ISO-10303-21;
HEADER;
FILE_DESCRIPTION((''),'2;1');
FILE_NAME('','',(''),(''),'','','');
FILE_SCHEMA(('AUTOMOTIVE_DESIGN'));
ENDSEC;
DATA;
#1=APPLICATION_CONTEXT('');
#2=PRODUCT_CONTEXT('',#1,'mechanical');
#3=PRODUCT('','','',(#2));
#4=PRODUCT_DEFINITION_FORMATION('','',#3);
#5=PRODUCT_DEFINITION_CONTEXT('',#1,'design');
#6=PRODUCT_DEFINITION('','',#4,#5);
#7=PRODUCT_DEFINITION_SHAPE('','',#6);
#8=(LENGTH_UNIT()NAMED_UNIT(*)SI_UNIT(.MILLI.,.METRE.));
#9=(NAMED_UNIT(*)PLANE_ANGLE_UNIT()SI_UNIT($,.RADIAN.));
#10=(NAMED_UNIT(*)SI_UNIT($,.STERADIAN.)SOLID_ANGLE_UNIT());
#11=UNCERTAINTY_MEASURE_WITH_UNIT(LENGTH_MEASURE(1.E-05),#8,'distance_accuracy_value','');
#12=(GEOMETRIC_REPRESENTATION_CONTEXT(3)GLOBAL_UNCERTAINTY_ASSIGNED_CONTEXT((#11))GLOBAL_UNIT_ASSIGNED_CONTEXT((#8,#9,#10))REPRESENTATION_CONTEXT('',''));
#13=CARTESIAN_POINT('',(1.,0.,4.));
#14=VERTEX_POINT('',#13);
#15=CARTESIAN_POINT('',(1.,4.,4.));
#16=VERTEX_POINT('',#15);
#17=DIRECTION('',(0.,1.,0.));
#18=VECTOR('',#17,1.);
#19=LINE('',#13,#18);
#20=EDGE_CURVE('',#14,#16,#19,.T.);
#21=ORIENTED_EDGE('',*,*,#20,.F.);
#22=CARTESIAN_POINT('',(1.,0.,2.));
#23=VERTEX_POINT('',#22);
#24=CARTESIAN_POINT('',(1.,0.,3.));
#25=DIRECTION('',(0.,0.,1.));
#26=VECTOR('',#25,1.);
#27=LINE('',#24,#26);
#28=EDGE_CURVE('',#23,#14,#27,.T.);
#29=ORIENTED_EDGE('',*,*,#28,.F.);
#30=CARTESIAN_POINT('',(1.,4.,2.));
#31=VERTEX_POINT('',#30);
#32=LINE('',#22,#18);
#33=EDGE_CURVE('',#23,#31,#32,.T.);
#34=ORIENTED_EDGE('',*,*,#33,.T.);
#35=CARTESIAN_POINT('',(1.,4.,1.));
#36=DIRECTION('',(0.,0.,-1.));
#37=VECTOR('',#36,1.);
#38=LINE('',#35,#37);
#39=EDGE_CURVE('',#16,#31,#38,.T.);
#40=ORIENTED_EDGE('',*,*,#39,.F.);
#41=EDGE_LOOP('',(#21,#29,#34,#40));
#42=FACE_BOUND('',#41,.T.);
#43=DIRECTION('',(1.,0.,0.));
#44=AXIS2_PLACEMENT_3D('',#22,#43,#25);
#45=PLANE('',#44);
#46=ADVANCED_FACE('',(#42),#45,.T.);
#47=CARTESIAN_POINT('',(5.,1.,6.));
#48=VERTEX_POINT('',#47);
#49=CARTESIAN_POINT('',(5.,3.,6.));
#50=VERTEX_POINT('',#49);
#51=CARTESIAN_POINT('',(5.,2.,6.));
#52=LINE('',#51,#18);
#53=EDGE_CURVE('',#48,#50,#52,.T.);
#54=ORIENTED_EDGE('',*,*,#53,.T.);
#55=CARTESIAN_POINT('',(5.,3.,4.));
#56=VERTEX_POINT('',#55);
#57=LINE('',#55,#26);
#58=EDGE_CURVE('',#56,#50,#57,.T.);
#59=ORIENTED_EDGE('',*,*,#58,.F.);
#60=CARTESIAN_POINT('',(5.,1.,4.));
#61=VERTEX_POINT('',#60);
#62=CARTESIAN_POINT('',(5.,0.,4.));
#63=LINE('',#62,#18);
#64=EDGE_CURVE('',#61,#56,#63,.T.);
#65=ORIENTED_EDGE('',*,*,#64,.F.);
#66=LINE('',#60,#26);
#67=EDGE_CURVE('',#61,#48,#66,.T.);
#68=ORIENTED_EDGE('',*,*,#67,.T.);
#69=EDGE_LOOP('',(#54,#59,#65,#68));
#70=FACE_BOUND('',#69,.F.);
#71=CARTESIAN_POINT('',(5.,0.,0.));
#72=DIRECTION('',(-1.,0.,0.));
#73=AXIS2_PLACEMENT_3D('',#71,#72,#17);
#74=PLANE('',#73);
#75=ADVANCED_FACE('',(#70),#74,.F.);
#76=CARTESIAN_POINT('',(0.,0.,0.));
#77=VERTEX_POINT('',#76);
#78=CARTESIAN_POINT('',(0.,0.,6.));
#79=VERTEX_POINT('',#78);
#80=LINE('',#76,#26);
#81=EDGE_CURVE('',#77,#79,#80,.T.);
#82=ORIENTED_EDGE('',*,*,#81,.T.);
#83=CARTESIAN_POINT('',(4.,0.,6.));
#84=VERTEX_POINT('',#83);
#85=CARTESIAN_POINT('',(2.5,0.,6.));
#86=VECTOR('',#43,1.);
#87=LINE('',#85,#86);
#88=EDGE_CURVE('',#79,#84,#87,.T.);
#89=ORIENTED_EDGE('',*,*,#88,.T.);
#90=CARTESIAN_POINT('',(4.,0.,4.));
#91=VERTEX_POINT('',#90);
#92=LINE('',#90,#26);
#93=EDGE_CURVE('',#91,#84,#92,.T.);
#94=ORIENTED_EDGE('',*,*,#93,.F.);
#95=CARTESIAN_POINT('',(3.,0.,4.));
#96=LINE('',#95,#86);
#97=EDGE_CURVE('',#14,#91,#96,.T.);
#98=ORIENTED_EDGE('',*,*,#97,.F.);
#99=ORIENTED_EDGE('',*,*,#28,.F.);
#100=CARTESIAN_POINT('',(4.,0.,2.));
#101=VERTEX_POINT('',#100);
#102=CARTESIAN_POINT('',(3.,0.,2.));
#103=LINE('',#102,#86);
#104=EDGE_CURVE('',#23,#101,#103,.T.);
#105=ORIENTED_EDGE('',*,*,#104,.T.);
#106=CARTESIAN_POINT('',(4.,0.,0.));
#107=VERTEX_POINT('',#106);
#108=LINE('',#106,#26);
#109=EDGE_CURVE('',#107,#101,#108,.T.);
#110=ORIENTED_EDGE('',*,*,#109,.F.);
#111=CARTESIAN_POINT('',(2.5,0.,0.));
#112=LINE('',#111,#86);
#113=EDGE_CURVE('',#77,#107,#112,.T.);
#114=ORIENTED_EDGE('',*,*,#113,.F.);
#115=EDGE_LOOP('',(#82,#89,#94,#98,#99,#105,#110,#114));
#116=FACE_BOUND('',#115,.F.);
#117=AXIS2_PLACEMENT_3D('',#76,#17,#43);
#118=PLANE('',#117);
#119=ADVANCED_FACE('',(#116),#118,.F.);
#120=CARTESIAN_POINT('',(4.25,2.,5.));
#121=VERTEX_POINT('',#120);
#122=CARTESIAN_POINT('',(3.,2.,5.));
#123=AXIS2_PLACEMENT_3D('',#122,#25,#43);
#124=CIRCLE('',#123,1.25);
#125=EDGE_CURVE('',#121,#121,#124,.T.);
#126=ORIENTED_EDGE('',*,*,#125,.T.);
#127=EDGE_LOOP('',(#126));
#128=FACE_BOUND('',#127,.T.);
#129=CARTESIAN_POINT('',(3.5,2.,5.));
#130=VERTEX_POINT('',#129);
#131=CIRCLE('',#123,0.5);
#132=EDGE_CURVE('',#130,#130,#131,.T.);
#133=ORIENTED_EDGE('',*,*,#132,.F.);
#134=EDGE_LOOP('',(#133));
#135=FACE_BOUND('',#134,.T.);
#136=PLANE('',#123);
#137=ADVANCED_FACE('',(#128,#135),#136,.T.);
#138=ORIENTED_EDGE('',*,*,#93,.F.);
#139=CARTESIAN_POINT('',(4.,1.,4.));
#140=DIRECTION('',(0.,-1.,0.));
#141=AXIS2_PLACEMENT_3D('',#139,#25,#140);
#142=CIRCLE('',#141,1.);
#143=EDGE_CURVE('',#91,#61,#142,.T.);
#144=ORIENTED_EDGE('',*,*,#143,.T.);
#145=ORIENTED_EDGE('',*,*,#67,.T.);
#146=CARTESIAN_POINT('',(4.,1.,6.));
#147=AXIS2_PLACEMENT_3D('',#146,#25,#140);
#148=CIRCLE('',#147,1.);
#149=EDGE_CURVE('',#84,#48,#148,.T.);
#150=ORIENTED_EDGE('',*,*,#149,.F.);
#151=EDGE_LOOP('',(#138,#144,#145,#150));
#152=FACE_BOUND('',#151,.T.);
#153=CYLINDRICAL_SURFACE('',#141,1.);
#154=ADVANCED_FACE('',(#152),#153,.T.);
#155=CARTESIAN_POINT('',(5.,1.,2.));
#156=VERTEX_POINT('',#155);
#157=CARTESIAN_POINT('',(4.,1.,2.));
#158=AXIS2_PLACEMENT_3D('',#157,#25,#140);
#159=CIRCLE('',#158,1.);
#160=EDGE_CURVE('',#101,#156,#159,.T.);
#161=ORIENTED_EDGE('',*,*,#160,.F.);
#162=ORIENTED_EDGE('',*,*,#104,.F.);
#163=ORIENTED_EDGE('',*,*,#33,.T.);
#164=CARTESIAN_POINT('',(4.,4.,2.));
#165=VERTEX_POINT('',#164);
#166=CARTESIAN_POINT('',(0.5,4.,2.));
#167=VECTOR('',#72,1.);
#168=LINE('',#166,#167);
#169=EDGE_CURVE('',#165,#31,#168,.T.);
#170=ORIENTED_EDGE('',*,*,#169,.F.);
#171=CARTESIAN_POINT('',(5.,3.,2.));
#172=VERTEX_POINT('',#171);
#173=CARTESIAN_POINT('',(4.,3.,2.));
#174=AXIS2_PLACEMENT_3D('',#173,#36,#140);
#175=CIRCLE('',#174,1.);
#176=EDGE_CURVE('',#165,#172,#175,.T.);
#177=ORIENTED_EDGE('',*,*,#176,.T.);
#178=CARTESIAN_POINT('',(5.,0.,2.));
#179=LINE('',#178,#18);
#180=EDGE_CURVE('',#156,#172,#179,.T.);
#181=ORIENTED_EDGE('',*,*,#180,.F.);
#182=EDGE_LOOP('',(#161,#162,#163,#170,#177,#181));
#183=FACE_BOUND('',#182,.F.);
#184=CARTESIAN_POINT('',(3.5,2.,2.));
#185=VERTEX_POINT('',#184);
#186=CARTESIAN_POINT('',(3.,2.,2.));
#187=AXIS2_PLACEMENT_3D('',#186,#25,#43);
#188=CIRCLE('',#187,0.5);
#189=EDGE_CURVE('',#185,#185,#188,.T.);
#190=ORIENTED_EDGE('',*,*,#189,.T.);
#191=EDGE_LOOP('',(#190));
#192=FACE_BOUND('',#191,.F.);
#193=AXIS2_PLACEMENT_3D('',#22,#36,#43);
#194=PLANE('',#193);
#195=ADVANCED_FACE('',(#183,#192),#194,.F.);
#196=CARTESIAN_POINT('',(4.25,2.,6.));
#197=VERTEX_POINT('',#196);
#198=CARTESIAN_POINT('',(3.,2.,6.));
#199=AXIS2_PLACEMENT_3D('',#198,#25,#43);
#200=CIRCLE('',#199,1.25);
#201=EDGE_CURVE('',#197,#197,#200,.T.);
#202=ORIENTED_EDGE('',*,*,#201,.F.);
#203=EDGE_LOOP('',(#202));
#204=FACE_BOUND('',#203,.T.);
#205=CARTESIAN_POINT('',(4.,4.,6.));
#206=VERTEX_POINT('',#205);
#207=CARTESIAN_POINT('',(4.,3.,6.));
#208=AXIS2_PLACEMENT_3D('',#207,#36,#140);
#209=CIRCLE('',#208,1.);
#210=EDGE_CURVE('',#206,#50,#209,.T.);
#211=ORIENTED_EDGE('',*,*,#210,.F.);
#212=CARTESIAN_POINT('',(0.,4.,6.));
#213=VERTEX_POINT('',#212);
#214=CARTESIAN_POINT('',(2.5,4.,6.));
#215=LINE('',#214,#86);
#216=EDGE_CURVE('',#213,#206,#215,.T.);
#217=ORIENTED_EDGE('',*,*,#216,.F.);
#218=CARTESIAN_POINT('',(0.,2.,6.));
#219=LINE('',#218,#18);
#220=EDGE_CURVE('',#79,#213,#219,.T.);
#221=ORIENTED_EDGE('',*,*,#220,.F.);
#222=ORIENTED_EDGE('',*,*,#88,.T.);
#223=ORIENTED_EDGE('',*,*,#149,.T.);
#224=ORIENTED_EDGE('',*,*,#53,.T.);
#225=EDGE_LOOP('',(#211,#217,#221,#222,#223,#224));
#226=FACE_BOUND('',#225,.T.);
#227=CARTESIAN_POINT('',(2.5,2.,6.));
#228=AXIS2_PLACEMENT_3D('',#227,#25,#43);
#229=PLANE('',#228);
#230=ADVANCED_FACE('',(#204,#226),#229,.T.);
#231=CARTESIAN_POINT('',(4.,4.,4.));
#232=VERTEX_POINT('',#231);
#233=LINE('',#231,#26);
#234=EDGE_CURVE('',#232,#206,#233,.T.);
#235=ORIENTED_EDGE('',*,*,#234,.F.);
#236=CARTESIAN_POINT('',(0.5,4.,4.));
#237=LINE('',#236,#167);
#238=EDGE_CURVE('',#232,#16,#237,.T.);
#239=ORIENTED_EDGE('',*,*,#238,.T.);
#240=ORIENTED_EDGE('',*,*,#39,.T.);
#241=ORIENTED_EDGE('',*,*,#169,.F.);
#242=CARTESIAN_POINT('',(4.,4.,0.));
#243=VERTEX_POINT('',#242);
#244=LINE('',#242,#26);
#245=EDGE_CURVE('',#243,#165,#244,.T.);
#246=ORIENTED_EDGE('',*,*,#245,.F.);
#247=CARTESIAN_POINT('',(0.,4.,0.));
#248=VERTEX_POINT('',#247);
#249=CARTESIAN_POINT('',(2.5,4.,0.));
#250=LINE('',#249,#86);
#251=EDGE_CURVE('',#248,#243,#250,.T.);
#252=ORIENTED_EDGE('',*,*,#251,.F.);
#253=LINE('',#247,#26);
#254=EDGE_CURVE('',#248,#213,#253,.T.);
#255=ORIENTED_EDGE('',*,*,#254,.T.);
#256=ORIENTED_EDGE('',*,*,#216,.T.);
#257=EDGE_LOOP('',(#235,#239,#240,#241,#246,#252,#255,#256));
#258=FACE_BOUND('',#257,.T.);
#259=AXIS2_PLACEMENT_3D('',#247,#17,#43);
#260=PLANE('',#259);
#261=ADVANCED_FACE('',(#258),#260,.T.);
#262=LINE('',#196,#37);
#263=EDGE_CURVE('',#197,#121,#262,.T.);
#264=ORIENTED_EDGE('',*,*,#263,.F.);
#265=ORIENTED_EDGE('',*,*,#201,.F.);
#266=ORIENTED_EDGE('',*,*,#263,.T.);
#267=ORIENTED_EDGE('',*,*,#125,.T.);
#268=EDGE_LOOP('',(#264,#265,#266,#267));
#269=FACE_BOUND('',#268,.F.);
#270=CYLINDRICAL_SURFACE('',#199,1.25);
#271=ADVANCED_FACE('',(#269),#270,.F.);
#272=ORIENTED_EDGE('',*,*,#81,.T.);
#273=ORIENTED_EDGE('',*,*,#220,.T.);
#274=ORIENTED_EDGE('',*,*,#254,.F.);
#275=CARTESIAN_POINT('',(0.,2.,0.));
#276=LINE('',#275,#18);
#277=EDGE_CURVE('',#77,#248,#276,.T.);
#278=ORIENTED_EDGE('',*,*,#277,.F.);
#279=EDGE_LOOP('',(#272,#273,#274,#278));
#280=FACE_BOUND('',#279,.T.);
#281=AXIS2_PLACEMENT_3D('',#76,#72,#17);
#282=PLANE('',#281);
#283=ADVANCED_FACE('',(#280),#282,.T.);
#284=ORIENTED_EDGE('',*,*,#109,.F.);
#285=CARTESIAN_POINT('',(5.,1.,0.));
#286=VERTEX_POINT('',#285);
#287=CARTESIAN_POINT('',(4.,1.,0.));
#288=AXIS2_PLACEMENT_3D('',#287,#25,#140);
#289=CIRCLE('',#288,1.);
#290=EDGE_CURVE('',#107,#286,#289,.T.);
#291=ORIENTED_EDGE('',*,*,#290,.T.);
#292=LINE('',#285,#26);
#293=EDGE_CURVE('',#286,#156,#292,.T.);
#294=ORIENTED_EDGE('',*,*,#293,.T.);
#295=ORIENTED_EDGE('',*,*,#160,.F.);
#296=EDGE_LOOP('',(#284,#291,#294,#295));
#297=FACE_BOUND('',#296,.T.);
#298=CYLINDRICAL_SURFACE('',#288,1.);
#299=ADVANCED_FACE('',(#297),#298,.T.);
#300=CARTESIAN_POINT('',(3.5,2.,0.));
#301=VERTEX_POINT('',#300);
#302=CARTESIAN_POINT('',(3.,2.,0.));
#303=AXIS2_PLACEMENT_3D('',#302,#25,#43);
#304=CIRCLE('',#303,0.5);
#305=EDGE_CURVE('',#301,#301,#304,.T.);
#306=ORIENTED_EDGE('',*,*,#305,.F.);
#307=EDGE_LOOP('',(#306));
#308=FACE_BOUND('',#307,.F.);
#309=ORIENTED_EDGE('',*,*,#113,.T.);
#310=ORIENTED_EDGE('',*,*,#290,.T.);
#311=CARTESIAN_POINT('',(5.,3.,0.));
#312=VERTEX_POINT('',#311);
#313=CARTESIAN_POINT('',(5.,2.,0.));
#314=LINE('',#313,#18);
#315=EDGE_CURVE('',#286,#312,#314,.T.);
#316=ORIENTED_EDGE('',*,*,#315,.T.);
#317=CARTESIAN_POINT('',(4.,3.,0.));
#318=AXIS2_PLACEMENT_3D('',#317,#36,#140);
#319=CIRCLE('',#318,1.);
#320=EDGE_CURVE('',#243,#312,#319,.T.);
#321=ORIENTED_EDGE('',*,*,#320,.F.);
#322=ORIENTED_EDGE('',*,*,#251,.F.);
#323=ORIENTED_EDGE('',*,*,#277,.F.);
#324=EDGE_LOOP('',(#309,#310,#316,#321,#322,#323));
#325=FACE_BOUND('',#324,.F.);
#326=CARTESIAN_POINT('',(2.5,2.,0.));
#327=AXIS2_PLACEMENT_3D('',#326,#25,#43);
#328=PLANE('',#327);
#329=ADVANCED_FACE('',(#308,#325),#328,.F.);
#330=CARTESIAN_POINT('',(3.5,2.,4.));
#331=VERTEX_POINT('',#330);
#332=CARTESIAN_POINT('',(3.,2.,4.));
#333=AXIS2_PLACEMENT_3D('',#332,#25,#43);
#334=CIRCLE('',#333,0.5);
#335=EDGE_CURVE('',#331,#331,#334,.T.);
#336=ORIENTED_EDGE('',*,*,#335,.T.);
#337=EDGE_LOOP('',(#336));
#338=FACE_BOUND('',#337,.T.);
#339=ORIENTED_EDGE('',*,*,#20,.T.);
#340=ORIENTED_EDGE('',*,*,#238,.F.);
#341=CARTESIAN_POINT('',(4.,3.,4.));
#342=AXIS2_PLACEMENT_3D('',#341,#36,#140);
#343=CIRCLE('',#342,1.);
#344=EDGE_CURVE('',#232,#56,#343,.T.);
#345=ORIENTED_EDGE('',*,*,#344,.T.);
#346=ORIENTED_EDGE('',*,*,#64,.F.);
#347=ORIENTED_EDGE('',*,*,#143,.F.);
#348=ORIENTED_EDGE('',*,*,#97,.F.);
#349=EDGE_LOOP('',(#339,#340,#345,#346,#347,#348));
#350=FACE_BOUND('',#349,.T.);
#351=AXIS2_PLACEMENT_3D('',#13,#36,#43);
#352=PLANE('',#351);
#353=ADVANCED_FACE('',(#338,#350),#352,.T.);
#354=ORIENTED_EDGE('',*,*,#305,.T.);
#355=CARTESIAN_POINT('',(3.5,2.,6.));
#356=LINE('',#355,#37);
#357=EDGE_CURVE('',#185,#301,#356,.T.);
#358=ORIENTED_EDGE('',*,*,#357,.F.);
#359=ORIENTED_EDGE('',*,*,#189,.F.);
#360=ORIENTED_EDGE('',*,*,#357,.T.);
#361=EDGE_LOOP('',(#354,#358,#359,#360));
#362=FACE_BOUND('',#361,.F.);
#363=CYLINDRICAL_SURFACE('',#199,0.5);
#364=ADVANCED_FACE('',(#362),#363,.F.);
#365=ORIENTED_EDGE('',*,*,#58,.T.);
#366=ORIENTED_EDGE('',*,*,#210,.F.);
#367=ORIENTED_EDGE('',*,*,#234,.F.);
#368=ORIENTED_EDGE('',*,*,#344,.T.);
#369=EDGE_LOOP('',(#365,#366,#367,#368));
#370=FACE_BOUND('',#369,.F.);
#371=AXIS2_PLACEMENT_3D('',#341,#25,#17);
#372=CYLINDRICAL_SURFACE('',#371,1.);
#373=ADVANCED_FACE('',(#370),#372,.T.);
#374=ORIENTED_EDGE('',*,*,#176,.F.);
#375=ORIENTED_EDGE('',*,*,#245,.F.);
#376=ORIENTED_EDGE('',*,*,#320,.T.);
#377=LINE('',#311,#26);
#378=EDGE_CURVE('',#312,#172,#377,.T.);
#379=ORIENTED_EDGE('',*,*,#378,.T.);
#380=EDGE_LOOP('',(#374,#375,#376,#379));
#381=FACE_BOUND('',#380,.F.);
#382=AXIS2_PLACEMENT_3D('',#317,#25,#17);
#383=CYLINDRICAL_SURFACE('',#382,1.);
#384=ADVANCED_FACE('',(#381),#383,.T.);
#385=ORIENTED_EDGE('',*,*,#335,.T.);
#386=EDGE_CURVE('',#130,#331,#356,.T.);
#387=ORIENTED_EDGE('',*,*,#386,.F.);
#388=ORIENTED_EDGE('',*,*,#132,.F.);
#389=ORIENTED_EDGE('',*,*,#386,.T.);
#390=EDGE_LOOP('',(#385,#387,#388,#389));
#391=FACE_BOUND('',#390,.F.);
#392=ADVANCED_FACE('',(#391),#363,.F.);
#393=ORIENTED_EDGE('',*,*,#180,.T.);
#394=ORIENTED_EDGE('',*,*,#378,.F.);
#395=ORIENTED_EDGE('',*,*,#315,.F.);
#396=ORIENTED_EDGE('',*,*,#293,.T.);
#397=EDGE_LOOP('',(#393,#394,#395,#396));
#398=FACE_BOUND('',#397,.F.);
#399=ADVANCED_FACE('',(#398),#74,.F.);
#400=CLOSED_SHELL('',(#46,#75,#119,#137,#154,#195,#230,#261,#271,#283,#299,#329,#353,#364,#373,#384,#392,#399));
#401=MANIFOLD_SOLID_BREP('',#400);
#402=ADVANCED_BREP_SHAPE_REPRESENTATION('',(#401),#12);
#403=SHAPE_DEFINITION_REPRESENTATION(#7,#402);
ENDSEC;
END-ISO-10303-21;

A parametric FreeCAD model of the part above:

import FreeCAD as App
import Part
import Sketcher
from FreeCAD import Vector


def edges_at(feature, points):
    """Names of the edges that pass closest to the given points."""
    edges = feature.Shape.Edges
    near = lambda p: min(range(len(edges)), key=lambda i: edges[i].distToShape(Part.Vertex(*p))[0])
    return sorted({f"Edge{near(p) + 1}" for p in points})

doc = App.newDocument("Part")
params = doc.addObject("Spreadsheet::Sheet", "Params")
for row, (alias, value) in enumerate([
    ("sketch1_width", "5 mm"),
    ("sketch1_height", "4 mm"),
    ("pad1_length", "6 mm"),
    ("sketch2_width", "4 mm"),
    ("sketch2_height", "2 mm"),
    ("pocket1_length", "25 mm"),
    ("sketch3_diameter", "1 mm"),
    ("pocket2_length", "25 mm"),
    ("sketch4_diameter", "1 mm"),
    ("sketch4_diameter2", "2.5 mm"),
    ("pocket3_length", "1 mm"),
    ("fillet_radius", "1 mm"),
], start=1):
    params.set(f"A{row}", alias)
    params.set(f"B{row}", "=" + value)
    params.setAlias(f"B{row}", alias)

body = doc.addObject("PartDesign::Body", "Body")

sketch1 = doc.addObject("Sketcher::SketchObject", "Sketch")
body.addObject(sketch1)
sketch1.AttachmentSupport = (doc.XY_Plane, [""])
sketch1.MapMode = "FlatFace"
sketch1.addGeometry(Part.LineSegment(Vector(0, 4, 0), Vector(0, 0, 0)), False)
sketch1.addGeometry(Part.LineSegment(Vector(0, 0, 0), Vector(5, 0, 0)), False)
sketch1.addGeometry(Part.LineSegment(Vector(5, 0, 0), Vector(5, 4, 0)), False)
sketch1.addGeometry(Part.LineSegment(Vector(5, 4, 0), Vector(0, 4, 0)), False)
sketch1.addConstraint(Sketcher.Constraint("Coincident", 0, 2, 1, 1))
sketch1.addConstraint(Sketcher.Constraint("Coincident", 1, 2, 2, 1))
sketch1.addConstraint(Sketcher.Constraint("Coincident", 2, 2, 3, 1))
sketch1.addConstraint(Sketcher.Constraint("Coincident", 3, 2, 0, 1))
sketch1.addConstraint(Sketcher.Constraint("Vertical", 0))
sketch1.addConstraint(Sketcher.Constraint("Horizontal", 1))
sketch1.addConstraint(Sketcher.Constraint("Vertical", 2))
sketch1.addConstraint(Sketcher.Constraint("Horizontal", 3))
sketch1.addConstraint(Sketcher.Constraint("Coincident", 0, 2, -1, 1))
sketch1.addConstraint(Sketcher.Constraint("DistanceX", 1, 1, 1, 2, 5.0))
sketch1.addConstraint(Sketcher.Constraint("DistanceY", 0, 2, 0, 1, 4.0))
sketch1.setExpression("Constraints[9]", "Params.sketch1_width")
sketch1.setExpression("Constraints[10]", "Params.sketch1_height")
pad1 = doc.addObject("PartDesign::Pad", "Pad")
body.addObject(pad1)
pad1.Profile = sketch1
pad1.setExpression("Length", "Params.pad1_length")

sketch2 = doc.addObject("Sketcher::SketchObject", "Sketch001")
body.addObject(sketch2)
sketch2.AttachmentSupport = (doc.XZ_Plane, [""])
sketch2.MapMode = "FlatFace"
sketch2.addGeometry(Part.LineSegment(Vector(1, 4, 0), Vector(1, 2, 0)), False)
sketch2.addGeometry(Part.LineSegment(Vector(1, 2, 0), Vector(5, 2, 0)), False)
sketch2.addGeometry(Part.LineSegment(Vector(5, 2, 0), Vector(5, 4, 0)), False)
sketch2.addGeometry(Part.LineSegment(Vector(5, 4, 0), Vector(1, 4, 0)), False)
sketch2.addConstraint(Sketcher.Constraint("Coincident", 0, 2, 1, 1))
sketch2.addConstraint(Sketcher.Constraint("Coincident", 1, 2, 2, 1))
sketch2.addConstraint(Sketcher.Constraint("Coincident", 2, 2, 3, 1))
sketch2.addConstraint(Sketcher.Constraint("Coincident", 3, 2, 0, 1))
sketch2.addConstraint(Sketcher.Constraint("Vertical", 0))
sketch2.addConstraint(Sketcher.Constraint("Horizontal", 1))
sketch2.addConstraint(Sketcher.Constraint("Vertical", 2))
sketch2.addConstraint(Sketcher.Constraint("Horizontal", 3))
sketch2.addConstraint(Sketcher.Constraint("DistanceX", 1, 1, 1, 2, 4.0))
sketch2.addConstraint(Sketcher.Constraint("DistanceY", 0, 2, 0, 1, 2.0))
sketch2.addConstraint(Sketcher.Constraint("DistanceX", -1, 1, 0, 2, 1.0))
sketch2.addConstraint(Sketcher.Constraint("DistanceY", -1, 1, 0, 2, 2.0))
sketch2.setExpression("Constraints[8]", "Params.sketch2_width")
sketch2.setExpression("Constraints[9]", "Params.sketch2_height")
pocket1 = doc.addObject("PartDesign::Pocket", "Pocket")
body.addObject(pocket1)
pocket1.Profile = sketch2
pocket1.setExpression("Length", "Params.pocket1_length")

sketch3 = doc.addObject("Sketcher::SketchObject", "Sketch002")
body.addObject(sketch3)
sketch3.AttachmentSupport = (doc.XY_Plane, [""])
sketch3.MapMode = "FlatFace"
sketch3.AttachmentOffset = App.Placement(Vector(0, 0, 6), App.Rotation())
sketch3.addGeometry(Part.Circle(Vector(3, 2, 0), Vector(0, 0, 1), 0.5), False)
sketch3.addConstraint(Sketcher.Constraint("Diameter", 0, 1.0))
sketch3.addConstraint(Sketcher.Constraint("DistanceX", -1, 1, 0, 3, 3.0))
sketch3.addConstraint(Sketcher.Constraint("DistanceY", -1, 1, 0, 3, 2.0))
sketch3.setExpression("Constraints[0]", "Params.sketch3_diameter")
pocket2 = doc.addObject("PartDesign::Pocket", "Pocket001")
body.addObject(pocket2)
pocket2.Profile = sketch3
pocket2.setExpression("Length", "Params.pocket2_length")

sketch4 = doc.addObject("Sketcher::SketchObject", "Sketch003")
body.addObject(sketch4)
sketch4.AttachmentSupport = (doc.XY_Plane, [""])
sketch4.MapMode = "FlatFace"
sketch4.AttachmentOffset = App.Placement(Vector(0, 0, 6), App.Rotation())
sketch4.addGeometry(Part.Circle(Vector(3, 2, 0), Vector(0, 0, 1), 1.2), False)
sketch4.addGeometry(Part.Circle(Vector(3, 2, 0), Vector(0, 0, 1), 0.5), False)
sketch4.addConstraint(Sketcher.Constraint("Coincident", 1, 3, 0, 3))
sketch4.addConstraint(Sketcher.Constraint("Diameter", 1, 1.0))
sketch4.addConstraint(Sketcher.Constraint("Diameter", 0, 2.5))
sketch4.addConstraint(Sketcher.Constraint("DistanceX", -1, 1, 0, 3, 3.0))
sketch4.addConstraint(Sketcher.Constraint("DistanceY", -1, 1, 0, 3, 2.0))
sketch4.setExpression("Constraints[1]", "Params.sketch4_diameter")
sketch4.setExpression("Constraints[2]", "Params.sketch4_diameter2")
pocket3 = doc.addObject("PartDesign::Pocket", "Pocket002")
body.addObject(pocket3)
pocket3.Profile = sketch4
pocket3.setExpression("Length", "Params.pocket3_length")
doc.recompute()

fillet = doc.addObject("PartDesign::Fillet", "Fillet")
body.addObject(fillet)
fillet.Base = (pocket3, edges_at(pocket3, [
    (5, 0, 1),
    (5, 0, 5),
    (5, 4, 5),
    (5, 4, 1),
]))
fillet.setExpression("Radius", "Params.fillet_radius")

doc.recompute()
